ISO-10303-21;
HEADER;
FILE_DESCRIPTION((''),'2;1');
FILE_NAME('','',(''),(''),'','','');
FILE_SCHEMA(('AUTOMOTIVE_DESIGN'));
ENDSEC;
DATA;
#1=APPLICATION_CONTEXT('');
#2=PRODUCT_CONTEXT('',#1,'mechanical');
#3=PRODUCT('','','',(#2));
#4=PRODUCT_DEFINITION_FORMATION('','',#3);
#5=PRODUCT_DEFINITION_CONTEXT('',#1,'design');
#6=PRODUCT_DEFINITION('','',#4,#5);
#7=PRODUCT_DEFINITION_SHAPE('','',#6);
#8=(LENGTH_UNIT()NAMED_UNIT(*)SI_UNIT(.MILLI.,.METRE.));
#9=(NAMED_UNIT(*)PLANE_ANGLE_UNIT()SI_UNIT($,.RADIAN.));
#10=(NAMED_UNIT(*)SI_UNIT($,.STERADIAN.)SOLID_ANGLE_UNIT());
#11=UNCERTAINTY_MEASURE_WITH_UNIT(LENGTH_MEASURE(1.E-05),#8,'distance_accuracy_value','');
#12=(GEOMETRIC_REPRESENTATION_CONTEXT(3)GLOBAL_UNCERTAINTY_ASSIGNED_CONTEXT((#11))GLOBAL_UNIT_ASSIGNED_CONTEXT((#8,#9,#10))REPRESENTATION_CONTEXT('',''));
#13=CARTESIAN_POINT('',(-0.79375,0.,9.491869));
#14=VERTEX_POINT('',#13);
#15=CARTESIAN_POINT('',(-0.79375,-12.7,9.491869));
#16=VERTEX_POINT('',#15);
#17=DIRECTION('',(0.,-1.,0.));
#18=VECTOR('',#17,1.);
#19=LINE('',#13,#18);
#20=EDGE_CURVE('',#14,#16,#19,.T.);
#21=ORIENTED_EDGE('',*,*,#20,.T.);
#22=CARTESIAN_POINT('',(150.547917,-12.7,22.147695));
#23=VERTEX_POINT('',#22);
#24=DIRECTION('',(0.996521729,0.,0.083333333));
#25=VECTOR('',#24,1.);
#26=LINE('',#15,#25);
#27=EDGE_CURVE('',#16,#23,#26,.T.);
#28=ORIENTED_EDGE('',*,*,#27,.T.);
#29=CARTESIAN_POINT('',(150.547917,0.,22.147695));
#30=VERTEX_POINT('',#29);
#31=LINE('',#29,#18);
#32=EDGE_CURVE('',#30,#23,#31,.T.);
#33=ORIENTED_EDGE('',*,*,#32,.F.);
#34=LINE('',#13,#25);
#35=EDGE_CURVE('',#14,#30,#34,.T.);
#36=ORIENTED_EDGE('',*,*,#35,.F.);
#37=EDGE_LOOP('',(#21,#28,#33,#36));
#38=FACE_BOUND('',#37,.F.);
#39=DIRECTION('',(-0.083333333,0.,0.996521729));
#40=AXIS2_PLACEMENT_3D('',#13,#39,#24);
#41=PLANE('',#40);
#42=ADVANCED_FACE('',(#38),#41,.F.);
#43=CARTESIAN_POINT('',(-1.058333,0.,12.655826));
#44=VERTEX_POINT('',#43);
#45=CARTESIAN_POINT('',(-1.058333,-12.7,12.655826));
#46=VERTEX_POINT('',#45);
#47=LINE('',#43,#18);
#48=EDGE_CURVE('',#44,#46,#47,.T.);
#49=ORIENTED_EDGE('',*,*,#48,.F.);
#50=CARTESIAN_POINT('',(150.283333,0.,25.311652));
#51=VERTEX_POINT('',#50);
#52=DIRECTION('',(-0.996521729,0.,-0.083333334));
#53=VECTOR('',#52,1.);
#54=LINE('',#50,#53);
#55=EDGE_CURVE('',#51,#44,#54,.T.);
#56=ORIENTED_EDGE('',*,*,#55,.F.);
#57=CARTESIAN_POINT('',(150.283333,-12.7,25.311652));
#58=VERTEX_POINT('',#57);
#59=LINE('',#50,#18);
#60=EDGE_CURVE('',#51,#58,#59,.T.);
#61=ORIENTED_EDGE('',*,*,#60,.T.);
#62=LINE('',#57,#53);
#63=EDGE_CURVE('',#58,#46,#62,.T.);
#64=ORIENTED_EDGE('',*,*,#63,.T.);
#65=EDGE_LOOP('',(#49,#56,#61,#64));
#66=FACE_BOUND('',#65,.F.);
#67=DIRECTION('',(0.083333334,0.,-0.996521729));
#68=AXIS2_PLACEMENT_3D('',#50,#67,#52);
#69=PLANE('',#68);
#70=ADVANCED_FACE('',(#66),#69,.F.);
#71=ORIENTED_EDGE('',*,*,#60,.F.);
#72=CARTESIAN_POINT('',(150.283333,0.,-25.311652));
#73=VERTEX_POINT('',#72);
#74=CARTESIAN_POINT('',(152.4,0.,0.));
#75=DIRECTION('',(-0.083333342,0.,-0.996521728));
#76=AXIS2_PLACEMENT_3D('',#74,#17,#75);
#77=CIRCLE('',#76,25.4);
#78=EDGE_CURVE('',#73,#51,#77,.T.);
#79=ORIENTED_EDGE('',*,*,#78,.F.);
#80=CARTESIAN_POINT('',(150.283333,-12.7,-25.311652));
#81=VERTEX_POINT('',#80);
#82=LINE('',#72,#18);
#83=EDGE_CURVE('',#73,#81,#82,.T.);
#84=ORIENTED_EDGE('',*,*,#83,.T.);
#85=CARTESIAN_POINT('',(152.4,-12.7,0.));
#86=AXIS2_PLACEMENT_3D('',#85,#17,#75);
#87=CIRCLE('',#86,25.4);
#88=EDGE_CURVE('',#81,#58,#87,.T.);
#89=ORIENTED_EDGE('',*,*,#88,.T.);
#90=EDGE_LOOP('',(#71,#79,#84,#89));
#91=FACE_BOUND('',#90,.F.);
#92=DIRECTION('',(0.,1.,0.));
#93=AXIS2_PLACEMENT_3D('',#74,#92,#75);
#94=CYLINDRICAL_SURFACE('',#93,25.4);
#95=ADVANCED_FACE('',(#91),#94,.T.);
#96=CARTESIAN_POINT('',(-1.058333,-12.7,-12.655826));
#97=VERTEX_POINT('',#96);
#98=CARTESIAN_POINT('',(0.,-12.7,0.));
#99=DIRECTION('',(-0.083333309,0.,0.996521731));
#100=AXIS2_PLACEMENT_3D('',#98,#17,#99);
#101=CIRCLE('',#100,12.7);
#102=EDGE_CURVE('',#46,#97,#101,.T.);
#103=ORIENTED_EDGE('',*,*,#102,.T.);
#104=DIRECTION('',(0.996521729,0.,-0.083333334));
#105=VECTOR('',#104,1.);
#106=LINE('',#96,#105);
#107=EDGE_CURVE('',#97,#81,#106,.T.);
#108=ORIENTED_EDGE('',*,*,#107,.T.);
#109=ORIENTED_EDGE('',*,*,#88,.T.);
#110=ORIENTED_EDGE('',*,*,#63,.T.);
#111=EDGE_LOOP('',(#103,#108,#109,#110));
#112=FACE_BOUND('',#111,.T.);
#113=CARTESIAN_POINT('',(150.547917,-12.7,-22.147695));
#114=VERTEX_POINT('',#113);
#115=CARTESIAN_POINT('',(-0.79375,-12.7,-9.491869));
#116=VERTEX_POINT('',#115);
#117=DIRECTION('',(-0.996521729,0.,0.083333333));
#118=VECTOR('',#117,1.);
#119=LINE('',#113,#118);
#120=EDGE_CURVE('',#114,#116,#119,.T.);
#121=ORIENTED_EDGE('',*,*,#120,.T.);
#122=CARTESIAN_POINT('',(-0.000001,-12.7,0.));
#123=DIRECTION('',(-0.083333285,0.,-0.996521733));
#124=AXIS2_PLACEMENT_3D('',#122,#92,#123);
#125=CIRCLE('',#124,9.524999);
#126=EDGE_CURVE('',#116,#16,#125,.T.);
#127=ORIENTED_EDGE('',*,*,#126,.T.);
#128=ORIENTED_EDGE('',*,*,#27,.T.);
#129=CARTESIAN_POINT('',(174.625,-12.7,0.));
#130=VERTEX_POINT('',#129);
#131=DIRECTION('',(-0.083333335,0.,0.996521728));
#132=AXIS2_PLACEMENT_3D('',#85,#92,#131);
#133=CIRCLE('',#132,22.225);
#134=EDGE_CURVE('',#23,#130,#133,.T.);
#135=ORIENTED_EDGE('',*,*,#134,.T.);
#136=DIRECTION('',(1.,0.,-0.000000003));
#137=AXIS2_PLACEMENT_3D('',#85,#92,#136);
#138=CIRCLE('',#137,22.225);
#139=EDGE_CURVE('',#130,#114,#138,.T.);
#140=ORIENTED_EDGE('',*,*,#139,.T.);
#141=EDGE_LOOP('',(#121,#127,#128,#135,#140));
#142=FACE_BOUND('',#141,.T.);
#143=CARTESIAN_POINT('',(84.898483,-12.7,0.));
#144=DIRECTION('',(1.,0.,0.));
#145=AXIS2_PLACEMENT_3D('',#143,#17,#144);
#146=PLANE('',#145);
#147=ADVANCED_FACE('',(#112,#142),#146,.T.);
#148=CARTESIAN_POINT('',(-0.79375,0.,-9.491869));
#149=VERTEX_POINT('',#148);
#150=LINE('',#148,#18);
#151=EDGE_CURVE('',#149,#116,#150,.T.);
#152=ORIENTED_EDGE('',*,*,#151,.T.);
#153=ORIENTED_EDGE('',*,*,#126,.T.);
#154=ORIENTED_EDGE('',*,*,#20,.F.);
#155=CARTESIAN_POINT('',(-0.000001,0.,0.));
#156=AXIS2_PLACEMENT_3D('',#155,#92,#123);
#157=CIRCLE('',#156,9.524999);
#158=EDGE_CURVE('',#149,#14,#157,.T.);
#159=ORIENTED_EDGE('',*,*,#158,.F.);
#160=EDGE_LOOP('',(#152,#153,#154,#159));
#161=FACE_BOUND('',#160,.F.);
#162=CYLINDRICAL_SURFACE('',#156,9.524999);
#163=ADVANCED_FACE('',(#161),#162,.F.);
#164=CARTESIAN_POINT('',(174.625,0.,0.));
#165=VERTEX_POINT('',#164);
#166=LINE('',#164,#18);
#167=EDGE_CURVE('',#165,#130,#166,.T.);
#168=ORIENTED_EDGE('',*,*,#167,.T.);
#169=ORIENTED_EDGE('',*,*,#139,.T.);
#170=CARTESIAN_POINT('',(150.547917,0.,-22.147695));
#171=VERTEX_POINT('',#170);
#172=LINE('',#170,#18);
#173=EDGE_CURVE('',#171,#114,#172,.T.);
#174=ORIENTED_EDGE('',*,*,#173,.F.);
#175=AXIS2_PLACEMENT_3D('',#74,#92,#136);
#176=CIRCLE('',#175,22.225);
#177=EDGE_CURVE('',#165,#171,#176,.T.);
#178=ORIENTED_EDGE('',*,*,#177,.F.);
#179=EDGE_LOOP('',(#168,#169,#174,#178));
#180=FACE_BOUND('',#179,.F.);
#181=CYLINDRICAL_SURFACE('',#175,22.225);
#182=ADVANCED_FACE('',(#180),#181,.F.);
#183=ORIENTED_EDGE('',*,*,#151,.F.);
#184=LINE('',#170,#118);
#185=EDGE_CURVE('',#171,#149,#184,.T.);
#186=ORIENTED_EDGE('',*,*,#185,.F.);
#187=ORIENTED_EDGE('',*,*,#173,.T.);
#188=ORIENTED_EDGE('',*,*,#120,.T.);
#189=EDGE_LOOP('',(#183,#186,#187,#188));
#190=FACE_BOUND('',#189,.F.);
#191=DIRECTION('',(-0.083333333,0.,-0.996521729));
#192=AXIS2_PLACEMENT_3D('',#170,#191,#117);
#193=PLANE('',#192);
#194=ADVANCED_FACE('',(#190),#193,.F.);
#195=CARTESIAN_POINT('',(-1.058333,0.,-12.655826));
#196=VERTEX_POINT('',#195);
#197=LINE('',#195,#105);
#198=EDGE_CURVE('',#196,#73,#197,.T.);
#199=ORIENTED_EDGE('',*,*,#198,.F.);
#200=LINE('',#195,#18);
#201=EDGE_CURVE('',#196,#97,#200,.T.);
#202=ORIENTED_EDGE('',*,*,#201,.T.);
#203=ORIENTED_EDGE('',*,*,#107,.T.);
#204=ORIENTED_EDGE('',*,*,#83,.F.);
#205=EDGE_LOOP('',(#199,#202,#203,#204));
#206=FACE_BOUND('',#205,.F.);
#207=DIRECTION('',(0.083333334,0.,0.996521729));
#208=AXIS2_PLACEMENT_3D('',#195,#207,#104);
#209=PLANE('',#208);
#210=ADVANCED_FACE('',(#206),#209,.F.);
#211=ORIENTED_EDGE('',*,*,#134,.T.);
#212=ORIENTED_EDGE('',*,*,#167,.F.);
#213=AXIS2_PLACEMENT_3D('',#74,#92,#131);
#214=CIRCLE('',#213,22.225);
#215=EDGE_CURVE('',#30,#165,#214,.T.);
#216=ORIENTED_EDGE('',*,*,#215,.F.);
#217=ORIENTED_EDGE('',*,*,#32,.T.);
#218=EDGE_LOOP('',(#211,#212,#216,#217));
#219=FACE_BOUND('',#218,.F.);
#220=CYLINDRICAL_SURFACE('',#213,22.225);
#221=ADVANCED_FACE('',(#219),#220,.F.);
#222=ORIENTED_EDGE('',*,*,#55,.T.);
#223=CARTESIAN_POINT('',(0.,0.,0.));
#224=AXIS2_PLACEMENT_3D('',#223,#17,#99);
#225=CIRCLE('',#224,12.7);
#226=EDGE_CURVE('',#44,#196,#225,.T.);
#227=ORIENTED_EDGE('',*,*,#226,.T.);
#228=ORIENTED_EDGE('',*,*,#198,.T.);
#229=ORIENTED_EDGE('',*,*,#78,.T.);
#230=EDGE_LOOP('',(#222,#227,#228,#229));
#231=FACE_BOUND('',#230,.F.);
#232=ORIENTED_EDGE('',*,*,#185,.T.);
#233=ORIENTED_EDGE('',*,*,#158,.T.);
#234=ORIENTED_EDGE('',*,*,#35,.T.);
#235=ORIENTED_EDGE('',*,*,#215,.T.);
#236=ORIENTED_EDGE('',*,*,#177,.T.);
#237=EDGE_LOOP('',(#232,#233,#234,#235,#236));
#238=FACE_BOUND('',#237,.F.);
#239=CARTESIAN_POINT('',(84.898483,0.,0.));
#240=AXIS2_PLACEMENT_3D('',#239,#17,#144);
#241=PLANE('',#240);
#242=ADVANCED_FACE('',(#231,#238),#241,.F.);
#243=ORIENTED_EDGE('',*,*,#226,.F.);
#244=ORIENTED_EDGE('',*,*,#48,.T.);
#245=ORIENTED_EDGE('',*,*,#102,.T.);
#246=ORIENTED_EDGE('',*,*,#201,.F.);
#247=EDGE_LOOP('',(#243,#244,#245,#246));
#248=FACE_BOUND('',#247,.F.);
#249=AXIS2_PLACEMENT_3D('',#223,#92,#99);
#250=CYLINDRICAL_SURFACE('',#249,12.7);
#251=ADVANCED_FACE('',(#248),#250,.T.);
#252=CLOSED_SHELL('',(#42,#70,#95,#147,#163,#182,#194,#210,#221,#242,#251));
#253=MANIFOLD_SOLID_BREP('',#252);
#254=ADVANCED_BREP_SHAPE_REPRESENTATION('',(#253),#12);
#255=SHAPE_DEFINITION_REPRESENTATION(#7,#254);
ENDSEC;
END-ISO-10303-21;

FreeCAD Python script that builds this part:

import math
import FreeCAD as App
import Part
import Sketcher
Q = App.Units.Quantity

doc = App.newDocument("Part")
body = doc.addObject("PartDesign::Body", "Body")

sketch1 = body.newObject("Sketcher::SketchObject", "Sketch")
sketch1.AttachmentSupport = (doc.getObject("XZ_Plane"), [""])
sketch1.MapMode = "FlatFace"
sketch1.addGeometry([
    Part.LineSegment(App.Vector(150, 25, 0), App.Vector(-1, 13, 0)),
    Part.ArcOfCircle(Part.Circle(App.Vector(0, 0, 0), App.Vector(0, 0, 1), 13), math.radians(95), math.radians(265)),
    Part.LineSegment(App.Vector(-1, -13, 0), App.Vector(150, -25, 0)),
    Part.ArcOfCircle(Part.Circle(App.Vector(152, 0, 0), App.Vector(0, 0, 1), 25), math.radians(-95), math.radians(95)),
    Part.LineSegment(App.Vector(151, -22, 0), App.Vector(-1, -9, 0)),
    Part.ArcOfCircle(Part.Circle(App.Vector(0, 0, 0), App.Vector(0, 0, 1), 10), math.radians(95), math.radians(265)),
    Part.LineSegment(App.Vector(-1, 9, 0), App.Vector(151, 22, 0)),
    Part.ArcOfCircle(Part.Circle(App.Vector(152, 0, 0), App.Vector(0, 0, 1), 22), math.radians(0), math.radians(95)),
    Part.ArcOfCircle(Part.Circle(App.Vector(152, 0, 0), App.Vector(0, 0, 1), 22), math.radians(-95), math.radians(0)),
], False)
sketch1.addConstraint([
    Sketcher.Constraint("Tangent", 0, 2, 1, 1),
    Sketcher.Constraint("Tangent", 1, 2, 2, 1),
    Sketcher.Constraint("Tangent", 2, 2, 3, 1),
    Sketcher.Constraint("Tangent", 3, 2, 0, 1),
    Sketcher.Constraint("Tangent", 4, 2, 5, 2),
    Sketcher.Constraint("Tangent", 5, 1, 6, 1),
    Sketcher.Constraint("Tangent", 6, 2, 7, 2),
    Sketcher.Constraint("Tangent", 7, 1, 8, 2),
    Sketcher.Constraint("Tangent", 8, 1, 4, 1),
    Sketcher.Constraint("Coincident", 1, 3, -1, 1),
    Sketcher.Constraint("Coincident", 5, 3, -1, 1),
    Sketcher.Constraint("Coincident", 7, 3, 3, 3),
    Sketcher.Constraint("Equal", 7, 8),
    Sketcher.Constraint("PointOnObject", 3, 3, -1),
    Sketcher.Constraint("PointOnObject", 7, 1, -1),
    Sketcher.Constraint("Parallel", 2, 4),
    Sketcher.Constraint("Radius", 3, Q("1 in")),
    Sketcher.Constraint("Radius", 1, Q("0.5 in")),
    Sketcher.Constraint("DistanceX", -1, 1, 3, 3, Q("6 in")),
    Sketcher.Constraint("Radius", 5, Q("0.375 in")),
])
pad1 = body.newObject("PartDesign::Pad", "Pad")
pad1.Profile = sketch1
pad1.Length = Q("0.5 in")

doc.recompute()
